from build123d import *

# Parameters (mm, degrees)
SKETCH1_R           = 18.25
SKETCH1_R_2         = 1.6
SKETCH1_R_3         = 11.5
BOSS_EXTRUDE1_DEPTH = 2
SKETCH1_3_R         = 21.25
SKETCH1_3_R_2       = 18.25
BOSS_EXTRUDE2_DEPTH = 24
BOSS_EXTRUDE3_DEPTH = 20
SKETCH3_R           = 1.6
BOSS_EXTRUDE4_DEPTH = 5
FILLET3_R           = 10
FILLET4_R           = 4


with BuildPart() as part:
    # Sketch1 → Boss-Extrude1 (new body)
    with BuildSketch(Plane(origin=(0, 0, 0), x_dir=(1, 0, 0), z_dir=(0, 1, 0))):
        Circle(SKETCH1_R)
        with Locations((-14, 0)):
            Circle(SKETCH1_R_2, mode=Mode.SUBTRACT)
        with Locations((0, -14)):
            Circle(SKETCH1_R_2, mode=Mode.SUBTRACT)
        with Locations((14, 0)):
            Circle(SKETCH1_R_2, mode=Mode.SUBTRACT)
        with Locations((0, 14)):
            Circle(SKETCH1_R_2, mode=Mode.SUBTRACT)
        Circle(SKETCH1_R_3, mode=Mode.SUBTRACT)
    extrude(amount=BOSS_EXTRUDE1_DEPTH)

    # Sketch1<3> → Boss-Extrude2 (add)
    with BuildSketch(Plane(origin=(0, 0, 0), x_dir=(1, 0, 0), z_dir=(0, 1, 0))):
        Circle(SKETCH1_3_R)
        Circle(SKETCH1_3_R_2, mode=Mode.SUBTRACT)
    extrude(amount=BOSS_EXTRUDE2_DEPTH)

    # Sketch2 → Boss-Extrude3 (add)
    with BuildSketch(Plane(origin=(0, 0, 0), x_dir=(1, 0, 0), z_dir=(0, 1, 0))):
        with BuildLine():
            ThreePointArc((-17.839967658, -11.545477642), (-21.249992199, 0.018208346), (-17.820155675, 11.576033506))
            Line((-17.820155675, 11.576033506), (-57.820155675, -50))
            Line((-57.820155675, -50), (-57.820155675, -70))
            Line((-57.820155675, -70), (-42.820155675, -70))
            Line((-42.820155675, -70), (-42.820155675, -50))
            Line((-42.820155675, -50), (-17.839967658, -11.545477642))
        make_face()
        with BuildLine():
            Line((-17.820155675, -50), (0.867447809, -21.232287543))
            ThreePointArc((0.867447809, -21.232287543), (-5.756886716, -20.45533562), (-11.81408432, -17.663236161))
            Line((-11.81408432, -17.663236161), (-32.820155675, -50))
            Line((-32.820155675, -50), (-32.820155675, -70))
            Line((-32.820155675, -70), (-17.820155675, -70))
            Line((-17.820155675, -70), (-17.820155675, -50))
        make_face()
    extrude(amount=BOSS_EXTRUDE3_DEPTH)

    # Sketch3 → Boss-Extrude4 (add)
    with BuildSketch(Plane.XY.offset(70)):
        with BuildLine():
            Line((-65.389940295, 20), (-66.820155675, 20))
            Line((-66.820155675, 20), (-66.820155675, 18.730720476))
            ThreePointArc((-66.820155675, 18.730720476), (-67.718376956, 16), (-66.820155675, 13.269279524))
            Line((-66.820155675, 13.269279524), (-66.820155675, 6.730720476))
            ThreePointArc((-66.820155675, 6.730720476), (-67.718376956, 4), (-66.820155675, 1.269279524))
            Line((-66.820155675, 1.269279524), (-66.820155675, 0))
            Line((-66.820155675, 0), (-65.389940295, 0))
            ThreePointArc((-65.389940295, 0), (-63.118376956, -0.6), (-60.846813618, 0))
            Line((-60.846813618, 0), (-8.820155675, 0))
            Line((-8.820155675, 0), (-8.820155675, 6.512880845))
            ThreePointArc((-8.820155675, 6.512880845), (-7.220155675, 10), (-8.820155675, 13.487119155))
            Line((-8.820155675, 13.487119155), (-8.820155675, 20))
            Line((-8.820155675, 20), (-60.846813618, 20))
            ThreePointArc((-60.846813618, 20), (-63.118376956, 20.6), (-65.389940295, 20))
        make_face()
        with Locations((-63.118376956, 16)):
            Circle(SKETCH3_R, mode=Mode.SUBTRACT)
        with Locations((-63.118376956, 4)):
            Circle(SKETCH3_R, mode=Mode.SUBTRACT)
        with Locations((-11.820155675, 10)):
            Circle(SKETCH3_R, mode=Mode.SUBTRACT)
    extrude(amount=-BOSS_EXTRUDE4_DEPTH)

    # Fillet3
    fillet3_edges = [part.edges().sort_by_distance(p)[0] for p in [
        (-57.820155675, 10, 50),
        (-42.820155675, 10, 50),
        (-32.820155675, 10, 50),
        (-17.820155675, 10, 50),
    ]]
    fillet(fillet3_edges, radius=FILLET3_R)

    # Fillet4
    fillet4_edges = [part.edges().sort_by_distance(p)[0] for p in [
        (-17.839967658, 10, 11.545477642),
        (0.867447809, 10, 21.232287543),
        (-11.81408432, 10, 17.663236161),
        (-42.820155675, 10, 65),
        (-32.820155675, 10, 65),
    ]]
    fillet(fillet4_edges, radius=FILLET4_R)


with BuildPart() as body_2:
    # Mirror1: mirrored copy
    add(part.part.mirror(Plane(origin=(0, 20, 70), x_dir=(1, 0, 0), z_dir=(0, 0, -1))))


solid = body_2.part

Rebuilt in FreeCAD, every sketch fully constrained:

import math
import FreeCAD as App
import Part
import Sketcher

V = App.Vector


def edges_at(feature, points):
    """Names of the edges that pass closest to the given points."""
    edges = feature.Shape.Edges
    near = lambda p: min(range(len(edges)), key=lambda i: edges[i].distToShape(Part.Vertex(*p))[0])
    return sorted({f"Edge{near(p) + 1}" for p in points})

doc = App.newDocument("Part")
body = doc.addObject("PartDesign::Body", "Body")

sketch1 = body.newObject("Sketcher::SketchObject", "Sketch")
sketch1.AttachmentSupport = (doc.getObject("XZ_Plane"), [""])
sketch1.MapMode = "FlatFace"
sketch1.addGeometry([
    Part.Circle(V(0, 0, 0), V(0, 0, 1), 18.2),
    Part.Circle(V(0, 14, 0), V(0, 0, 1), 1.6),
    Part.Circle(V(-14, 0, 0), V(0, 0, 1), 1.6),
    Part.Circle(V(0, 0, 0), V(0, 0, 1), 11.5),
    Part.Circle(V(14, 0, 0), V(0, 0, 1), 1.6),
    Part.Circle(V(0, -14, 0), V(0, 0, 1), 1.6),
], False)
sketch1.addConstraint([
    Sketcher.Constraint("Coincident", 0, 3, -1, 1),
    Sketcher.Constraint("Coincident", 3, 3, -1, 1),
    Sketcher.Constraint("Equal", 1, 2),
    Sketcher.Constraint("Equal", 2, 4),
    Sketcher.Constraint("Equal", 4, 5),
    Sketcher.Constraint("Symmetric", 2, 3, 4, 3, -1, 1),
    Sketcher.Constraint("Symmetric", 1, 3, 5, 3, -1, 1),
    Sketcher.Constraint("PointOnObject", 1, 3, -2),
    Sketcher.Constraint("PointOnObject", 2, 3, -1),
    Sketcher.Constraint("Diameter", 3, 23.0),
    Sketcher.Constraint("Diameter", 0, 36.5),
    Sketcher.Constraint("Diameter", 1, 3.2),
    Sketcher.Constraint("DistanceY", -1, 1, 1, 3, 14.0),
    Sketcher.Constraint("DistanceX", 2, 3, -1, 1, 14.0),
])
pad1 = body.newObject("PartDesign::Pad", "Pad")
pad1.Profile = sketch1
pad1.Length = 2
pad1.Reversed = True

sketch2 = body.newObject("Sketcher::SketchObject", "Sketch001")
sketch2.AttachmentSupport = (doc.getObject("XZ_Plane"), [""])
sketch2.MapMode = "FlatFace"
sketch2.addGeometry([
    Part.Circle(V(0, 0, 0), V(0, 0, 1), 21),
    Part.Circle(V(0, 0, 0), V(0, 0, 1), 18),
], False)
sketch2.addConstraint([
    Sketcher.Constraint("Coincident", 0, 3, -1, 1),
    Sketcher.Constraint("Coincident", 1, 3, -1, 1),
    Sketcher.Constraint("Diameter", 0, 42.5),
    Sketcher.Constraint("Diameter", 1, 36.5),
])
pad2 = body.newObject("PartDesign::Pad", "Pad001")
pad2.Profile = sketch2
pad2.Length = 24
pad2.Reversed = True

sketch3 = body.newObject("Sketcher::SketchObject", "Sketch002")
sketch3.AttachmentSupport = (doc.getObject("XZ_Plane"), [""])
sketch3.MapMode = "FlatFace"
sketch3.addGeometry([
    Part.ArcOfCircle(Part.Circle(V(0, 0, 0), V(0, 0, 1), 21), math.radians(147), math.radians(213)),
    Part.LineSegment(V(-18, -12, 0), V(-58, 50, 0)),
    Part.LineSegment(V(-58, 50, 0), V(-58, 70, 0)),
    Part.LineSegment(V(-58, 70, 0), V(-43, 70, 0)),
    Part.LineSegment(V(-43, 70, 0), V(-43, 50, 0)),
    Part.LineSegment(V(-43, 50, 0), V(-18, 12, 0)),
    Part.LineSegment(V(-18, 50, 0), V(1, 21, 0)),
    Part.ArcOfCircle(Part.Circle(V(0, 0, 0), V(0, 0, 1), 21), math.radians(88), math.radians(124)),
    Part.LineSegment(V(-12, 18, 0), V(-33, 50, 0)),
    Part.LineSegment(V(-33, 50, 0), V(-33, 70, 0)),
    Part.LineSegment(V(-33, 70, 0), V(-18, 70, 0)),
    Part.LineSegment(V(-18, 70, 0), V(-18, 50, 0)),
], False)
sketch3.addConstraint([
    Sketcher.Constraint("Tangent", 0, 2, 1, 1),
    Sketcher.Constraint("Coincident", 1, 2, 2, 1),
    Sketcher.Constraint("Coincident", 2, 2, 3, 1),
    Sketcher.Constraint("Coincident", 3, 2, 4, 1),
    Sketcher.Constraint("Coincident", 4, 2, 5, 1),
    Sketcher.Constraint("Coincident", 5, 2, 0, 1),
    Sketcher.Constraint("Coincident", 6, 2, 7, 1),
    Sketcher.Constraint("Coincident", 7, 2, 8, 1),
    Sketcher.Constraint("Coincident", 8, 2, 9, 1),
    Sketcher.Constraint("Coincident", 9, 2, 10, 1),
    Sketcher.Constraint("Coincident", 10, 2, 11, 1),
    Sketcher.Constraint("Coincident", 11, 2, 6, 1),
    Sketcher.Constraint("Vertical", 2),
    Sketcher.Constraint("Horizontal", 3),
    Sketcher.Constraint("Vertical", 4),
    Sketcher.Constraint("Vertical", 9),
    Sketcher.Constraint("Horizontal", 10),
    Sketcher.Constraint("Vertical", 11),
    Sketcher.Constraint("Coincident", 0, 3, -1, 1),
    Sketcher.Constraint("Coincident", 7, 3, -1, 1),
    Sketcher.Constraint("Equal", 0, 7),
    Sketcher.Constraint("Parallel", 1, 5),
    Sketcher.Constraint("Parallel", 5, 6),
    Sketcher.Constraint("Parallel", 6, 8),
    Sketcher.Constraint("Horizontal", 1, 2, 4, 2),
    Sketcher.Constraint("Horizontal", 4, 2, 8, 2),
    Sketcher.Constraint("Horizontal", 3, 2, 9, 2),
    Sketcher.Constraint("Horizontal", 8, 2, 11, 2),
    Sketcher.Constraint("Vertical", 0, 2, 10, 2),
    Sketcher.Constraint("Equal", 3, 10),
    Sketcher.Constraint("DistanceX", 3, 1, 3, 2, 15.0),
    Sketcher.Constraint("DistanceY", 2, 1, 2, 2, 20.0),
    Sketcher.Constraint("Radius", 0, 21.25),
    Sketcher.Constraint("DistanceY", -1, 1, 1, 2, 50.0),
    Sketcher.Constraint("DistanceX", 1, 2, 0, 2, 40.0),
])
pad3 = body.newObject("PartDesign::Pad", "Pad002")
pad3.Profile = sketch3
pad3.Length = 20
pad3.Reversed = True

sketch4 = body.newObject("Sketcher::SketchObject", "Sketch003")
sketch4.AttachmentSupport = (doc.getObject("XY_Plane"), [""])
sketch4.MapMode = "FlatFace"
sketch4.AttachmentOffset = App.Placement(V(0, 0, 70), App.Rotation())
sketch4.addGeometry([
    Part.LineSegment(V(-65.4, 20, 0), V(-66.8, 20, 0)),
    Part.LineSegment(V(-66.8, 20, 0), V(-66.8, 18.7, 0)),
    Part.ArcOfCircle(Part.Circle(V(-63.1, 16, 0), V(0, 0, 1), 4.6), math.radians(144), math.radians(216)),
    Part.LineSegment(V(-66.8, 13.3, 0), V(-66.8, 6.7, 0)),
    Part.ArcOfCircle(Part.Circle(V(-63.1, 4, 0), V(0, 0, 1), 4.6), math.radians(144), math.radians(216)),
    Part.LineSegment(V(-66.8, 1.3, 0), V(-66.8, 0, 0)),
    Part.LineSegment(V(-66.8, 0, 0), V(-65.4, 0, 0)),
    Part.ArcOfCircle(Part.Circle(V(-63.1, 4, 0), V(0, 0, 1), 4.6), math.radians(-120), math.radians(-60)),
    Part.LineSegment(V(-60.8, 0, 0), V(-8.8, 0, 0)),
    Part.LineSegment(V(-8.8, 0, 0), V(-8.8, 6.5, 0)),
    Part.ArcOfCircle(Part.Circle(V(-11.8, 10, 0), V(0, 0, 1), 4.6), math.radians(-49), math.radians(49)),
    Part.LineSegment(V(-8.8, 13.5, 0), V(-8.8, 20, 0)),
    Part.LineSegment(V(-8.8, 20, 0), V(-60.8, 20, 0)),
    Part.ArcOfCircle(Part.Circle(V(-63.1, 16, 0), V(0, 0, 1), 4.6), math.radians(60), math.radians(120)),
    Part.Circle(V(-63.1, 4, 0), V(0, 0, 1), 1.6),
    Part.Circle(V(-11.8, 10, 0), V(0, 0, 1), 1.6),
    Part.Circle(V(-63.1, 16, 0), V(0, 0, 1), 1.6),
], False)
sketch4.addConstraint([
    Sketcher.Constraint("Coincident", 0, 2, 1, 1),
    Sketcher.Constraint("Coincident", 1, 2, 2, 1),
    Sketcher.Constraint("Coincident", 2, 2, 3, 1),
    Sketcher.Constraint("Coincident", 3, 2, 4, 1),
    Sketcher.Constraint("Coincident", 4, 2, 5, 1),
    Sketcher.Constraint("Coincident", 5, 2, 6, 1),
    Sketcher.Constraint("Coincident", 6, 2, 7, 1),
    Sketcher.Constraint("Coincident", 7, 2, 8, 1),
    Sketcher.Constraint("Coincident", 8, 2, 9, 1),
    Sketcher.Constraint("Coincident", 9, 2, 10, 1),
    Sketcher.Constraint("Coincident", 10, 2, 11, 1),
    Sketcher.Constraint("Coincident", 11, 2, 12, 1),
    Sketcher.Constraint("Coincident", 12, 2, 13, 1),
    Sketcher.Constraint("Coincident", 13, 2, 0, 1),
    Sketcher.Constraint("Horizontal", 0),
    Sketcher.Constraint("Vertical", 1),
    Sketcher.Constraint("Vertical", 3),
    Sketcher.Constraint("Vertical", 5),
    Sketcher.Constraint("Horizontal", 6),
    Sketcher.Constraint("Horizontal", 8),
    Sketcher.Constraint("Vertical", 9),
    Sketcher.Constraint("Vertical", 11),
    Sketcher.Constraint("Horizontal", 12),
    Sketcher.Constraint("Coincident", 7, 3, 4, 3),
    Sketcher.Constraint("Coincident", 13, 3, 2, 3),
    Sketcher.Constraint("Coincident", 14, 3, 4, 3),
    Sketcher.Constraint("Coincident", 15, 3, 10, 3),
    Sketcher.Constraint("Coincident", 16, 3, 2, 3),
    Sketcher.Constraint("Equal", 2, 4),
    Sketcher.Constraint("Equal", 4, 7),
    Sketcher.Constraint("Equal", 7, 10),
    Sketcher.Constraint("Equal", 10, 13),
    Sketcher.Constraint("Equal", 14, 15),
    Sketcher.Constraint("Equal", 15, 16),
    Sketcher.Constraint("PointOnObject", 5, 2, -1),
    Sketcher.Constraint("PointOnObject", 7, 2, -1),
    Sketcher.Constraint("Horizontal", 0, 2, 11, 2),
    Sketcher.Constraint("Vertical", 2, 3, 4, 3),
    Sketcher.Constraint("Vertical", 1, 2, 2, 2),
    Sketcher.Constraint("Vertical", 3, 2, 4, 2),
    Sketcher.Constraint("Vertical", 9, 2, 10, 2),
    Sketcher.Constraint("Vertical", 7, 2, 12, 2),
    Sketcher.Constraint("Equal", 9, 11),
    Sketcher.Constraint("Diameter", 14, 3.2),
    Sketcher.Constraint("Radius", 2, 4.6),
    Sketcher.Constraint("DistanceY", -1, 1, 2, 3, 16.0),
    Sketcher.Constraint("DistanceY", -1, 1, 4, 3, 4.0),
    Sketcher.Constraint("DistanceX", 10, 3, 8, 2, 3.0),
    Sketcher.Constraint("DistanceY", 1, 2, 1, 1, 1.26928),
    Sketcher.Constraint("DistanceX", 8, 1, 8, 2, 52.026658),
    Sketcher.Constraint("DistanceX", 6, 2, -1, 1, 65.38994),
])
pad4 = body.newObject("PartDesign::Pad", "Pad003")
pad4.Profile = sketch4
pad4.Length = 5
pad4.Reversed = True
doc.recompute()

fillet = body.newObject("PartDesign::Fillet", "Fillet")
fillet.Base = (pad4, edges_at(pad4, [
    (-57.82, 10, 50),
    (-42.82, 10, 50),
    (-32.82, 10, 50),
    (-17.82, 10, 50),
]))
fillet.Radius = 10
doc.recompute()

fillet2 = body.newObject("PartDesign::Fillet", "Fillet001")
fillet2.Base = (fillet, edges_at(fillet, [
    (-17.84, 10, 11.545),
    (0.867, 10, 21.232),
    (-11.814, 10, 17.663),
    (-42.82, 10, 65),
    (-32.82, 10, 65),
]))
fillet2.Radius = 4
body2 = doc.addObject("PartDesign::Body", "Body001")
doc.recompute()

mirroring = doc.addObject("Part::Mirroring", "Mirroring")
mirroring.Source = body
mirroring.Base = V(0, 20, 70)
mirroring.Normal = V(0, 0, -1)
body2.BaseFeature = mirroring
doc.recompute()
body.Visibility = False
mirroring.Visibility = False

doc.recompute()
